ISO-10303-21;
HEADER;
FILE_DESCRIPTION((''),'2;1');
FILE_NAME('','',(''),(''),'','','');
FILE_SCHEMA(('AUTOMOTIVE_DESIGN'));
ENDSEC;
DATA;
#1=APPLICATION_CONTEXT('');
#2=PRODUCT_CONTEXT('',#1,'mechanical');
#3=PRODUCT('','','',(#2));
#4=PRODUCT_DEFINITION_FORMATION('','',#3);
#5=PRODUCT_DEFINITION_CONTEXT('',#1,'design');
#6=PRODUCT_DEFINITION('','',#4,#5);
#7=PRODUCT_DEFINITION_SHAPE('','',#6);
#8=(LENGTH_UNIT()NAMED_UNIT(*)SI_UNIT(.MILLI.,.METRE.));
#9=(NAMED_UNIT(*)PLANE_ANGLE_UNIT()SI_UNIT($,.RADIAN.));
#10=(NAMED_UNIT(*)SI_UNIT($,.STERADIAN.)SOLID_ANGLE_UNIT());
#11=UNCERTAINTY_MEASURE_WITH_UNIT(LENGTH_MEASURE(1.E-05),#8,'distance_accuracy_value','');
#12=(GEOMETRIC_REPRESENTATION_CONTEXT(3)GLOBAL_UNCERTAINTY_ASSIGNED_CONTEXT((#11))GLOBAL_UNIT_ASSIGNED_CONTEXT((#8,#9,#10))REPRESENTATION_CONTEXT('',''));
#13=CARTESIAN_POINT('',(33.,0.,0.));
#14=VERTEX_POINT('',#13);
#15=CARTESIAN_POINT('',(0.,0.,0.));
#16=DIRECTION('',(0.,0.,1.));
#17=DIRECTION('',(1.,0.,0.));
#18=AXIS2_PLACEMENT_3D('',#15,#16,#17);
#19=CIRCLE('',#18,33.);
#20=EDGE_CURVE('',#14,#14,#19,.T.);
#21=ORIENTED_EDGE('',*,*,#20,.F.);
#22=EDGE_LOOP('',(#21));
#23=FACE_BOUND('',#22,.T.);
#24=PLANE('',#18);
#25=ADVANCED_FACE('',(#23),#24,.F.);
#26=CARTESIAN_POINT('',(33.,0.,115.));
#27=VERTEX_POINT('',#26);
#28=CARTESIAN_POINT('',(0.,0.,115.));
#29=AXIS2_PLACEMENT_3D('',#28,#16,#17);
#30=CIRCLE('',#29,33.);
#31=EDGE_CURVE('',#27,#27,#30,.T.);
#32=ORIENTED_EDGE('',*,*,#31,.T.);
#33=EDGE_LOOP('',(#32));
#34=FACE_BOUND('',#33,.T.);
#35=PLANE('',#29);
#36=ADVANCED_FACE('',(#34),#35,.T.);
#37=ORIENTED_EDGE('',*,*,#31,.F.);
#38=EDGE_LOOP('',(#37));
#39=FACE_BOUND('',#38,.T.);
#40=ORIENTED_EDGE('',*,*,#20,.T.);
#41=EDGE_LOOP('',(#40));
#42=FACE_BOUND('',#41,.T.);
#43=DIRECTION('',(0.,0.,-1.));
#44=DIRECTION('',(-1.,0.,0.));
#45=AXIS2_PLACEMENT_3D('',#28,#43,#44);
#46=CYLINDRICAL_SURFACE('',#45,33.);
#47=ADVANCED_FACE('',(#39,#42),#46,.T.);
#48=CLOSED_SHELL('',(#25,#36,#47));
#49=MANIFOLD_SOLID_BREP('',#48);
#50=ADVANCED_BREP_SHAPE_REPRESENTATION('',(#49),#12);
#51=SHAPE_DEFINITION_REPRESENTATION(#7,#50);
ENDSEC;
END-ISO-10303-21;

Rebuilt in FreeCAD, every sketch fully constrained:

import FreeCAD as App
import Part
import Sketcher
Q = App.Units.Quantity

doc = App.newDocument("Part")
body = doc.addObject("PartDesign::Body", "Body")

# Sketch on XY plane
sketch1 = body.newObject("Sketcher::SketchObject", "Sketch")
sketch1.AttachmentSupport = (doc.getObject("XY_Plane"), [""])
sketch1.MapMode = "FlatFace"
sketch1.addGeometry(Part.Circle(App.Vector(0, 0, 0), App.Vector(0, 0, 1), 33), False)
sketch1.addConstraint(Sketcher.Constraint("Coincident", 0, 3, -1, 1))
sketch1.addConstraint(Sketcher.Constraint("Diameter", 0, Q("66 mm")))
pad1 = body.newObject("PartDesign::Pad", "Pad")
pad1.Profile = sketch1
pad1.Length = 115

doc.recompute()
